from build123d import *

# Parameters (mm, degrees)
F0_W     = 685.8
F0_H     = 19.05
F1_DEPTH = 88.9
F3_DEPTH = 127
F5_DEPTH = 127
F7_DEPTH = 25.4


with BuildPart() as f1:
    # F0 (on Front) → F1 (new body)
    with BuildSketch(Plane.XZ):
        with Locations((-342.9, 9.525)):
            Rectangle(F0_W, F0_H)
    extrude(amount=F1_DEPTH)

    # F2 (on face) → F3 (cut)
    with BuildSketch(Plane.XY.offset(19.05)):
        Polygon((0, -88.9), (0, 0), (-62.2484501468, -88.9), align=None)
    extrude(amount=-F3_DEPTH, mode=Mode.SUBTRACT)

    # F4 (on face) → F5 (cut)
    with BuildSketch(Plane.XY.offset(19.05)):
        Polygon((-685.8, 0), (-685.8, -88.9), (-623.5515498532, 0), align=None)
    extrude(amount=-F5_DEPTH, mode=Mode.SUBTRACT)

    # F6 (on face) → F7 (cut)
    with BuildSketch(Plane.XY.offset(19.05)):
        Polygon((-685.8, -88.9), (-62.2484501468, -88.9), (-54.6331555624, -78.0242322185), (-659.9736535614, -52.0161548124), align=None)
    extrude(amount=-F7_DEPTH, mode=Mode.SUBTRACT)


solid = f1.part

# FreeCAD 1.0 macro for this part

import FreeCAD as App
import Part
import Sketcher
from FreeCAD import Vector
Q = App.Units.Quantity

doc = App.newDocument("Part")
body = doc.addObject("PartDesign::Body", "Body")

sketch1 = body.newObject("Sketcher::SketchObject", "Sketch")
sketch1.AttachmentSupport = (doc.getObject("XZ_Plane"), [""])
sketch1.MapMode = "FlatFace"
sketch1.addGeometry([
    Part.LineSegment(Vector(-686, 19, 0), Vector(-686, 0, 0)),
    Part.LineSegment(Vector(-686, 0, 0), Vector(0, 0, 0)),
    Part.LineSegment(Vector(0, 0, 0), Vector(0, 19, 0)),
    Part.LineSegment(Vector(0, 19, 0), Vector(-686, 19, 0)),
], False)
sketch1.addConstraint([
    Sketcher.Constraint("Coincident", 0, 2, 1, 1),
    Sketcher.Constraint("Coincident", 1, 2, 2, 1),
    Sketcher.Constraint("Coincident", 2, 2, 3, 1),
    Sketcher.Constraint("Coincident", 3, 2, 0, 1),
    Sketcher.Constraint("Vertical", 0),
    Sketcher.Constraint("Horizontal", 1),
    Sketcher.Constraint("Vertical", 2),
    Sketcher.Constraint("Horizontal", 3),
    Sketcher.Constraint("Coincident", 1, 2, -1, 1),
    Sketcher.Constraint("DistanceX", 1, 1, 1, 2, Q("27 in")),
    Sketcher.Constraint("DistanceY", 0, 2, 0, 1, Q("0.75 in")),
])
pad1 = body.newObject("PartDesign::Pad", "Pad")
pad1.Profile = sketch1
pad1.Length = Q("3.5 in")

sketch2 = body.newObject("Sketcher::SketchObject", "Sketch001")
sketch2.AttachmentSupport = (doc.getObject("XY_Plane"), [""])
sketch2.MapMode = "FlatFace"
sketch2.AttachmentOffset = App.Placement(Vector(0, 0, 0.75 * 25.4), App.Rotation())
sketch2.addGeometry([
    Part.LineSegment(Vector(0, -89, 0), Vector(0, 0, 0)),
    Part.LineSegment(Vector(0, 0, 0), Vector(-62, -89, 0)),
    Part.LineSegment(Vector(-62, -89, 0), Vector(0, -89, 0)),
], False)
sketch2.addConstraint([
    Sketcher.Constraint("Coincident", 0, 2, 1, 1),
    Sketcher.Constraint("Coincident", 1, 2, 2, 1),
    Sketcher.Constraint("Coincident", 2, 2, 0, 1),
    Sketcher.Constraint("Vertical", 0),
    Sketcher.Constraint("Horizontal", 2),
    Sketcher.Constraint("Coincident", 0, 2, -1, 1),
    Sketcher.Constraint("DistanceY", 0, 1, 0, 2, Q("3.5 in")),
    Sketcher.Constraint("Angle", 1, Q("-125 deg")),
])
pocket1 = body.newObject("PartDesign::Pocket", "Pocket")
pocket1.Profile = sketch2
pocket1.Length = Q("5 in")

sketch3 = body.newObject("Sketcher::SketchObject", "Sketch002")
sketch3.AttachmentSupport = (doc.getObject("XY_Plane"), [""])
sketch3.MapMode = "FlatFace"
sketch3.AttachmentOffset = App.Placement(Vector(0, 0, 0.75 * 25.4), App.Rotation())
sketch3.addGeometry([
    Part.LineSegment(Vector(-686, 0, 0), Vector(-686, -89, 0)),
    Part.LineSegment(Vector(-686, -89, 0), Vector(-624, 0, 0)),
    Part.LineSegment(Vector(-624, 0, 0), Vector(-686, 0, 0)),
], False)
sketch3.addConstraint([
    Sketcher.Constraint("Coincident", 0, 2, 1, 1),
    Sketcher.Constraint("Coincident", 1, 2, 2, 1),
    Sketcher.Constraint("Coincident", 2, 2, 0, 1),
    Sketcher.Constraint("Vertical", 0),
    Sketcher.Constraint("Horizontal", 2),
    Sketcher.Constraint("PointOnObject", 1, 2, -1),
    Sketcher.Constraint("DistanceY", 0, 2, 0, 1, Q("3.5 in")),
    Sketcher.Constraint("DistanceX", 0, 2, -1, 1, Q("27 in")),
    Sketcher.Constraint("Angle", 1, Q("55 deg")),
])
pocket2 = body.newObject("PartDesign::Pocket", "Pocket001")
pocket2.Profile = sketch3
pocket2.Length = Q("5 in")

sketch4 = body.newObject("Sketcher::SketchObject", "Sketch003")
sketch4.AttachmentSupport = (doc.getObject("XY_Plane"), [""])
sketch4.MapMode = "FlatFace"
sketch4.AttachmentOffset = App.Placement(Vector(0, 0, 0.75 * 25.4), App.Rotation())
sketch4.addGeometry([
    Part.LineSegment(Vector(-686, -89, 0), Vector(-62, -89, 0)),
    Part.LineSegment(Vector(-62, -89, 0), Vector(-55, -78, 0)),
    Part.LineSegment(Vector(-55, -78, 0), Vector(-660, -52, 0)),
    Part.LineSegment(Vector(-660, -52, 0), Vector(-686, -89, 0)),
], False)
sketch4.addConstraint([
    Sketcher.Constraint("Coincident", 0, 2, 1, 1),
    Sketcher.Constraint("Coincident", 1, 2, 2, 1),
    Sketcher.Constraint("Coincident", 2, 2, 3, 1),
    Sketcher.Constraint("Coincident", 3, 2, 0, 1),
    Sketcher.Constraint("Horizontal", 0),
    Sketcher.Constraint("Parallel", 1, 3),
    Sketcher.Constraint("DistanceX", 3, 2, -1, 1, Q("27 in")),
    Sketcher.Constraint("Angle", 1, Q("55 deg")),
    Sketcher.Constraint("DistanceY", 0, 2, -1, 1, Q("3.5 in")),
    Sketcher.Constraint("DistanceX", 0, 1, 0, 2, Q("623.55155 mm")),
    Sketcher.Constraint("Distance", 1, Q("13.276861 mm")),
    Sketcher.Constraint("Distance", 2, Q("605.898951 mm")),
])
pocket3 = body.newObject("PartDesign::Pocket", "Pocket002")
pocket3.Profile = sketch4
pocket3.Length = Q("1 in")

doc.recompute()
